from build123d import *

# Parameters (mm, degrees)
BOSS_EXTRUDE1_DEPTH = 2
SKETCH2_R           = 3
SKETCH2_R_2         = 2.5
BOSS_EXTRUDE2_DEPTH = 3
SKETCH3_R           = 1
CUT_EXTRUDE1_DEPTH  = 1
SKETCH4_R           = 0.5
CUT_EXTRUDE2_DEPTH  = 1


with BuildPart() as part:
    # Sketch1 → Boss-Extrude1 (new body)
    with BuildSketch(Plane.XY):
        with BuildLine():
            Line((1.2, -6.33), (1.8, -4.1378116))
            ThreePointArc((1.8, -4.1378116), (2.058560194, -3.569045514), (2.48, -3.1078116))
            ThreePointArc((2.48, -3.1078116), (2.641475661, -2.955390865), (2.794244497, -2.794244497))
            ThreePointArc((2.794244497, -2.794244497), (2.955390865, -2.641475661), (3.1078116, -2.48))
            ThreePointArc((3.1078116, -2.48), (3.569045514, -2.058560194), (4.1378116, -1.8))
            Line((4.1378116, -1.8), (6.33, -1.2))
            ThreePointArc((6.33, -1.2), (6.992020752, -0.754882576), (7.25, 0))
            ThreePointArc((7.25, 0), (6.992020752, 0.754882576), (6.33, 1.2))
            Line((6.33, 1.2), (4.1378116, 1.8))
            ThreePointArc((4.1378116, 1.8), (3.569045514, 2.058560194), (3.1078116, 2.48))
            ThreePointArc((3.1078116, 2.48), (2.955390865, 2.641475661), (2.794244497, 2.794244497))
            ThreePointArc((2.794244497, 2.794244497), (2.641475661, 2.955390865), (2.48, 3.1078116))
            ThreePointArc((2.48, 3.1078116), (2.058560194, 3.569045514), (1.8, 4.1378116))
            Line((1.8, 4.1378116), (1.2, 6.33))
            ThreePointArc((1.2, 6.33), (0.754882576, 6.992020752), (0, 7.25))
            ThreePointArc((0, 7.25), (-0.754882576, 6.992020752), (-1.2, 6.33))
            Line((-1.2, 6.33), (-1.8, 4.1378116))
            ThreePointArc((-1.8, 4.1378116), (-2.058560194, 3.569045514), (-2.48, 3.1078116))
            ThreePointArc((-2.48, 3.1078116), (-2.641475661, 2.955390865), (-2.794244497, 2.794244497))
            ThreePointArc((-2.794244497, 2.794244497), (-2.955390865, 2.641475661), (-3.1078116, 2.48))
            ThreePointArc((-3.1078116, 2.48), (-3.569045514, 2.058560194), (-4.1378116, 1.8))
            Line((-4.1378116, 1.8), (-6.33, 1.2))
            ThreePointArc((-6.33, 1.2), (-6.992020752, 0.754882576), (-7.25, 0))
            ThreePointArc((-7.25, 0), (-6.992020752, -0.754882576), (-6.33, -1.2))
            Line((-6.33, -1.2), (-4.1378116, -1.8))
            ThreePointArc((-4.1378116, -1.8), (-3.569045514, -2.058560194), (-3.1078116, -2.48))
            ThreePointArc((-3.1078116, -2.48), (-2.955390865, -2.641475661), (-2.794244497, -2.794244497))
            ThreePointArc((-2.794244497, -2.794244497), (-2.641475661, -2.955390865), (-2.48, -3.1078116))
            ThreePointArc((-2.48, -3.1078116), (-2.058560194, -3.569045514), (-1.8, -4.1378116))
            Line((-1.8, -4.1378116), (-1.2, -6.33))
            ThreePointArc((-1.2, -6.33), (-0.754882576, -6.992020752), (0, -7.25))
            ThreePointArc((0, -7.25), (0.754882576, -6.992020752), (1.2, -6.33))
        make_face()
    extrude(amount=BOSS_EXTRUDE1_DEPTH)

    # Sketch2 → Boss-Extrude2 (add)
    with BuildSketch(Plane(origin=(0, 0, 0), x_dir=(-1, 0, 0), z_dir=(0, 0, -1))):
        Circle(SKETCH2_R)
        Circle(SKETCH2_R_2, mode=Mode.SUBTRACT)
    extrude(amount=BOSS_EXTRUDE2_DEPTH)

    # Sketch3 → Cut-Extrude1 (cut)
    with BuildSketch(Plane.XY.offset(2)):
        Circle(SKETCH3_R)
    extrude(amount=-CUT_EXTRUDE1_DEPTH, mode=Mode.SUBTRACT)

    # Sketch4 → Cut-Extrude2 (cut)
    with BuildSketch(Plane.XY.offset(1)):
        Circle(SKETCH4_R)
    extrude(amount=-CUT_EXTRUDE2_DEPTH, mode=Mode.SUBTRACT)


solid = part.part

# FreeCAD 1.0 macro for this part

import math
import FreeCAD as App
import Part
import Sketcher
from FreeCAD import Vector

doc = App.newDocument("Part")
params = doc.addObject("Spreadsheet::Sheet", "Params")
for row, (alias, value) in enumerate([
    ("sketch1_radius", "2 mm"),
    ("sketch1_radius2", "4 mm"),
    ("sketch1_radius3", "1.25 mm"),
    ("pad1_length", "2 mm"),
    ("sketch2_diameter", "6 mm"),
    ("sketch2_diameter2", "5 mm"),
    ("pad2_length", "3 mm"),
    ("sketch3_diameter", "2 mm"),
    ("pocket1_length", "1 mm"),
    ("sketch4_diameter", "1 mm"),
    ("pocket2_length", "1 mm"),
], start=1):
    params.set(f"A{row}", alias)
    params.set(f"B{row}", "=" + value)
    params.setAlias(f"B{row}", alias)

body = doc.addObject("PartDesign::Body", "Body")

# Sketch on XY plane
sketch1 = doc.addObject("Sketcher::SketchObject", "Sketch")
body.addObject(sketch1)
sketch1.AttachmentSupport = (doc.XY_Plane, [""])
sketch1.MapMode = "FlatFace"
sketch1.addGeometry([
    Part.LineSegment(Vector(1.2, -6.33, 0), Vector(1.8, -4.137812, 0)),  # 0
    Part.ArcOfCircle(Part.Circle(Vector(3.72763, -4.670956, 0), Vector(0, 0, 1), 2), math.radians(128.595264), math.radians(164.539616)),  # 1
    Part.ArcOfCircle(Part.Circle(Vector(-0.183898, -0.123913, 0), Vector(0, 0, 1), 4), math.radians(-48.24287), math.radians(-41.880772)),  # 2
    Part.ArcOfCircle(Part.Circle(Vector(0.123913, 0.183898, 0), Vector(0, 0, 1), 4), math.radians(-48.119228), math.radians(-41.75713)),  # 3
    Part.ArcOfCircle(Part.Circle(Vector(4.670956, -3.72763, 0), Vector(0, 0, 1), 2), math.radians(105.460384), math.radians(141.404736)),  # 4
    Part.LineSegment(Vector(4.137812, -1.8, 0), Vector(6.33, -1.2, 0)),  # 5
    Part.ArcOfCircle(Part.Circle(Vector(6.000013, 0.005657, 0), Vector(0, 0, 1), 1.25), math.radians(-74.693067), math.radians(-0.259292)),  # 6
    Part.ArcOfCircle(Part.Circle(Vector(6.000013, -0.005657, 0), Vector(0, 0, 1), 1.25), math.radians(0.259292), math.radians(74.693067)),  # 7
    Part.LineSegment(Vector(6.33, 1.2, 0), Vector(4.137812, 1.8, 0)),  # 8
    Part.ArcOfCircle(Part.Circle(Vector(4.670956, 3.72763, 0), Vector(0, 0, 1), 2), math.radians(-141.404736), math.radians(-105.460384)),  # 9
    Part.ArcOfCircle(Part.Circle(Vector(0.123913, -0.183898, 0), Vector(0, 0, 1), 4), math.radians(41.75713), math.radians(48.119228)),  # 10
    Part.ArcOfCircle(Part.Circle(Vector(-0.183898, 0.123913, 0), Vector(0, 0, 1), 4), math.radians(41.880772), math.radians(48.24287)),  # 11
    Part.ArcOfCircle(Part.Circle(Vector(3.72763, 4.670956, 0), Vector(0, 0, 1), 2), math.radians(-164.539616), math.radians(-128.595264)),  # 12
    Part.LineSegment(Vector(1.8, 4.137812, 0), Vector(1.2, 6.33, 0)),  # 13
    Part.ArcOfCircle(Part.Circle(Vector(-0.005657, 6.000013, 0), Vector(0, 0, 1), 1.25), math.radians(15.306933), math.radians(89.740708)),  # 14
    Part.ArcOfCircle(Part.Circle(Vector(0.005657, 6.000013, 0), Vector(0, 0, 1), 1.25), math.radians(90.259292), math.radians(164.693067)),  # 15
    Part.LineSegment(Vector(-1.2, 6.33, 0), Vector(-1.8, 4.137812, 0)),  # 16
    Part.ArcOfCircle(Part.Circle(Vector(-3.72763, 4.670956, 0), Vector(0, 0, 1), 2), math.radians(-51.404736), math.radians(-15.460384)),  # 17
    Part.ArcOfCircle(Part.Circle(Vector(0.183898, 0.123913, 0), Vector(0, 0, 1), 4), math.radians(131.75713), math.radians(138.119228)),  # 18
    Part.ArcOfCircle(Part.Circle(Vector(-0.123913, -0.183898, 0), Vector(0, 0, 1), 4), math.radians(131.880772), math.radians(138.24287)),  # 19
    Part.ArcOfCircle(Part.Circle(Vector(-4.670956, 3.72763, 0), Vector(0, 0, 1), 2), math.radians(-74.539616), math.radians(-38.595264)),  # 20
    Part.LineSegment(Vector(-4.137812, 1.8, 0), Vector(-6.33, 1.2, 0)),  # 21
    Part.ArcOfCircle(Part.Circle(Vector(-6.000013, -0.005657, 0), Vector(0, 0, 1), 1.25), math.radians(105.306933), math.radians(179.740708)),  # 22
    Part.ArcOfCircle(Part.Circle(Vector(-6.000013, 0.005657, 0), Vector(0, 0, 1), 1.25), math.radians(-179.740708), math.radians(-105.306933)),  # 23
    Part.LineSegment(Vector(-6.33, -1.2, 0), Vector(-4.137812, -1.8, 0)),  # 24
    Part.ArcOfCircle(Part.Circle(Vector(-4.670956, -3.72763, 0), Vector(0, 0, 1), 2), math.radians(38.595264), math.radians(74.539616)),  # 25
    Part.ArcOfCircle(Part.Circle(Vector(-0.123913, 0.183898, 0), Vector(0, 0, 1), 4), math.radians(-138.24287), math.radians(-131.880772)),  # 26
    Part.ArcOfCircle(Part.Circle(Vector(0.183898, -0.123913, 0), Vector(0, 0, 1), 4), math.radians(-138.119228), math.radians(-131.75713)),  # 27
    Part.ArcOfCircle(Part.Circle(Vector(-3.72763, -4.670956, 0), Vector(0, 0, 1), 2), math.radians(15.460384), math.radians(51.404736)),  # 28
    Part.LineSegment(Vector(-1.8, -4.137812, 0), Vector(-1.2, -6.33, 0)),  # 29
    Part.ArcOfCircle(Part.Circle(Vector(0.005657, -6.000013, 0), Vector(0, 0, 1), 1.25), math.radians(-164.693067), math.radians(-90.259292)),  # 30
    Part.ArcOfCircle(Part.Circle(Vector(-0.005657, -6.000013, 0), Vector(0, 0, 1), 1.25), math.radians(-89.740708), math.radians(-15.306933)),  # 31
], False)
sketch1.addConstraint([
    Sketcher.Constraint("Coincident", 0, 2, 1, 2),
    Sketcher.Constraint("Coincident", 1, 1, 2, 1),
    Sketcher.Constraint("Coincident", 2, 2, 3, 1),
    Sketcher.Constraint("Coincident", 3, 2, 4, 2),
    Sketcher.Constraint("Coincident", 4, 1, 5, 1),
    Sketcher.Constraint("Tangent", 5, 2, 6, 1),
    Sketcher.Constraint("Coincident", 6, 2, 7, 1),
    Sketcher.Constraint("Tangent", 7, 2, 8, 1),
    Sketcher.Constraint("Coincident", 8, 2, 9, 2),
    Sketcher.Constraint("Coincident", 9, 1, 10, 1),
    Sketcher.Constraint("Coincident", 10, 2, 11, 1),
    Sketcher.Constraint("Coincident", 11, 2, 12, 2),
    Sketcher.Constraint("Coincident", 12, 1, 13, 1),
    Sketcher.Constraint("Tangent", 13, 2, 14, 1),
    Sketcher.Constraint("Coincident", 14, 2, 15, 1),
    Sketcher.Constraint("Tangent", 15, 2, 16, 1),
    Sketcher.Constraint("Coincident", 16, 2, 17, 2),
    Sketcher.Constraint("Coincident", 17, 1, 18, 1),
    Sketcher.Constraint("Coincident", 18, 2, 19, 1),
    Sketcher.Constraint("Coincident", 19, 2, 20, 2),
    Sketcher.Constraint("Coincident", 20, 1, 21, 1),
    Sketcher.Constraint("Tangent", 21, 2, 22, 1),
    Sketcher.Constraint("Coincident", 22, 2, 23, 1),
    Sketcher.Constraint("Tangent", 23, 2, 24, 1),
    Sketcher.Constraint("Coincident", 24, 2, 25, 2),
    Sketcher.Constraint("Coincident", 25, 1, 26, 1),
    Sketcher.Constraint("Coincident", 26, 2, 27, 1),
    Sketcher.Constraint("Coincident", 27, 2, 28, 2),
    Sketcher.Constraint("Coincident", 28, 1, 29, 1),
    Sketcher.Constraint("Tangent", 29, 2, 30, 1),
    Sketcher.Constraint("Coincident", 30, 2, 31, 1),
    Sketcher.Constraint("Tangent", 31, 2, 0, 1),
    Sketcher.Constraint("Equal", 2, 3),
    Sketcher.Constraint("Equal", 1, 4),
    Sketcher.Constraint("Equal", 6, 7),
    Sketcher.Constraint("Equal", 4, 9),
    Sketcher.Constraint("Equal", 3, 10),
    Sketcher.Constraint("Equal", 10, 11),
    Sketcher.Constraint("Equal", 9, 12),
    Sketcher.Constraint("Equal", 7, 14),
    Sketcher.Constraint("Equal", 14, 15),
    Sketcher.Constraint("Equal", 12, 17),
    Sketcher.Constraint("Equal", 11, 18),
    Sketcher.Constraint("Equal", 18, 19),
    Sketcher.Constraint("Equal", 17, 20),
    Sketcher.Constraint("Equal", 15, 22),
    Sketcher.Constraint("Equal", 22, 23),
    Sketcher.Constraint("Equal", 20, 25),
    Sketcher.Constraint("Equal", 19, 26),
    Sketcher.Constraint("Equal", 26, 27),
    Sketcher.Constraint("Equal", 25, 28),
    Sketcher.Constraint("Equal", 23, 30),
    Sketcher.Constraint("Equal", 30, 31),
    Sketcher.Constraint("Symmetric", 1, 3, 17, 3, -1, 1),
    Sketcher.Constraint("Symmetric", 2, 3, 18, 3, -1, 1),
    Sketcher.Constraint("Symmetric", 3, 3, 19, 3, -1, 1),
    Sketcher.Constraint("Symmetric", 4, 3, 20, 3, -1, 1),
    Sketcher.Constraint("Symmetric", 6, 3, 22, 3, -1, 1),
    Sketcher.Constraint("Symmetric", 7, 3, 23, 3, -1, 1),
    Sketcher.Constraint("Symmetric", 9, 3, 25, 3, -1, 1),
    Sketcher.Constraint("Symmetric", 10, 3, 26, 3, -1, 1),
    Sketcher.Constraint("Symmetric", 11, 3, 27, 3, -1, 1),
    Sketcher.Constraint("Symmetric", 12, 3, 28, 3, -1, 1),
    Sketcher.Constraint("Symmetric", 14, 3, 30, 3, -1, 1),
    Sketcher.Constraint("Symmetric", 15, 3, 31, 3, -1, 1),
    Sketcher.Constraint("Symmetric", 14, 3, 15, 3, -2),
    Sketcher.Constraint("Symmetric", 12, 3, 17, 3, -2),
    Sketcher.Constraint("Symmetric", 11, 3, 18, 3, -2),
    Sketcher.Constraint("Symmetric", 10, 3, 19, 3, -2),
    Sketcher.Constraint("Symmetric", 9, 3, 20, 3, -2),
    Sketcher.Constraint("Symmetric", 7, 3, 22, 3, -2),
    Sketcher.Constraint("Perpendicular", 0, 8),
    Sketcher.Constraint("Perpendicular", 5, 13),
    Sketcher.Constraint("Perpendicular", 16, 24),
    Sketcher.Constraint("Horizontal", 12, 1, 16, 2),
    Sketcher.Constraint("Horizontal", 8, 2, 20, 1),
    Sketcher.Constraint("Horizontal", 0, 2, 28, 1),
    Sketcher.Constraint("Vertical", 4, 1, 8, 2),
    Sketcher.Constraint("Equal", 0, 5),
    Sketcher.Constraint("Radius", 1, 2.0),
    Sketcher.Constraint("Radius", 2, 4.0),
    Sketcher.Constraint("Radius", 6, 1.25),
    Sketcher.Constraint("DistanceX", -1, 1, 0, 2, 1.8),
    Sketcher.Constraint("DistanceY", 4, 1, -1, 1, 1.8),
    Sketcher.Constraint("DistanceY", 5, 2, -1, 1, 1.2),
    Sketcher.Constraint("DistanceX", -1, 1, 1, 1, 2.48),
    Sketcher.Constraint("DistanceY", 3, 2, -1, 1, 2.48),
    Sketcher.Constraint("DistanceX", -1, 1, 5, 2, 6.33),
    Sketcher.Constraint("DistanceX", -1, 1, 6, 2, 7.25),
    Sketcher.Constraint("DistanceY", -1, 1, 13, 2, 6.33),
    Sketcher.Constraint("DistanceY", 0, 2, 1, 1, 1.03),
    Sketcher.Constraint("DistanceX", 3, 2, 4, 1, 1.03),
    Sketcher.Constraint("DistanceX", 2, 3, -1, 1, 0.183898),
    Sketcher.Constraint("DistanceY", -1, 1, 3, 3, 0.183898),
])
sketch1.setExpression("Constraints[79]", "Params.sketch1_radius")
sketch1.setExpression("Constraints[80]", "Params.sketch1_radius2")
sketch1.setExpression("Constraints[81]", "Params.sketch1_radius3")
pad1 = doc.addObject("PartDesign::Pad", "Pad")
body.addObject(pad1)
pad1.Profile = sketch1
pad1.setExpression("Length", "Params.pad1_length")

# Sketch on XY plane
sketch2 = doc.addObject("Sketcher::SketchObject", "Sketch001")
body.addObject(sketch2)
sketch2.AttachmentSupport = (doc.XY_Plane, [""])
sketch2.MapMode = "FlatFace"
sketch2.addGeometry([
    Part.Circle(Vector(0, 0, 0), Vector(0, 0, 1), 3),
    Part.Circle(Vector(0, 0, 0), Vector(0, 0, 1), 2.5),
], False)
sketch2.addConstraint([
    Sketcher.Constraint("Coincident", 0, 3, -1, 1),
    Sketcher.Constraint("Coincident", 1, 3, -1, 1),
    Sketcher.Constraint("Diameter", 0, 6.0),
    Sketcher.Constraint("Diameter", 1, 5.0),
])
sketch2.setExpression("Constraints[2]", "Params.sketch2_diameter")
sketch2.setExpression("Constraints[3]", "Params.sketch2_diameter2")
pad2 = doc.addObject("PartDesign::Pad", "Pad001")
body.addObject(pad2)
pad2.Profile = sketch2
pad2.setExpression("Length", "Params.pad2_length")
pad2.Reversed = True

# Sketch on XY plane
sketch3 = doc.addObject("Sketcher::SketchObject", "Sketch002")
body.addObject(sketch3)
sketch3.AttachmentSupport = (doc.XY_Plane, [""])
sketch3.MapMode = "FlatFace"
sketch3.AttachmentOffset = App.Placement(Vector(0, 0, 2), App.Rotation())
sketch3.addGeometry(Part.Circle(Vector(0, 0, 0), Vector(0, 0, 1), 1), False)
sketch3.addConstraint([
    Sketcher.Constraint("Coincident", 0, 3, -1, 1),
    Sketcher.Constraint("Diameter", 0, 2.0),
])
sketch3.setExpression("Constraints[1]", "Params.sketch3_diameter")
pocket1 = doc.addObject("PartDesign::Pocket", "Pocket")
body.addObject(pocket1)
pocket1.Profile = sketch3
pocket1.setExpression("Length", "Params.pocket1_length")

# Sketch on XY plane
sketch4 = doc.addObject("Sketcher::SketchObject", "Sketch003")
body.addObject(sketch4)
sketch4.AttachmentSupport = (doc.XY_Plane, [""])
sketch4.MapMode = "FlatFace"
sketch4.AttachmentOffset = App.Placement(Vector(0, 0, 1), App.Rotation())
sketch4.addGeometry(Part.Circle(Vector(0, 0, 0), Vector(0, 0, 1), 0.5), False)
sketch4.addConstraint([
    Sketcher.Constraint("Coincident", 0, 3, -1, 1),
    Sketcher.Constraint("Diameter", 0, 1.0),
])
sketch4.setExpression("Constraints[1]", "Params.sketch4_diameter")
pocket2 = doc.addObject("PartDesign::Pocket", "Pocket001")
body.addObject(pocket2)
pocket2.Profile = sketch4
pocket2.setExpression("Length", "Params.pocket2_length")

doc.recompute()
